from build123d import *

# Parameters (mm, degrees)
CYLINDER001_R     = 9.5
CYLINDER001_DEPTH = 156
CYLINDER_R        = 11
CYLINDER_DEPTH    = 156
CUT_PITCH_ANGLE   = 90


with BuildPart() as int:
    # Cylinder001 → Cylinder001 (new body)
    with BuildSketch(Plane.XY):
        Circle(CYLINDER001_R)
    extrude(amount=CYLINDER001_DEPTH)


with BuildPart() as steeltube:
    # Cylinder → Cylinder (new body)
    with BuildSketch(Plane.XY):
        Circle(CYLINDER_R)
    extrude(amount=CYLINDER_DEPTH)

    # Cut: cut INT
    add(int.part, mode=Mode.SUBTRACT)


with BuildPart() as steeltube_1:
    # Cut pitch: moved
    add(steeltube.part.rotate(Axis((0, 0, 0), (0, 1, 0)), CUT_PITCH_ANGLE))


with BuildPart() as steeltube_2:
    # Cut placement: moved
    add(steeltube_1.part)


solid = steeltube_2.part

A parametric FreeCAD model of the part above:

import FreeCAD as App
import Part
import Sketcher

V = App.Vector

doc = App.newDocument("Part")
body = doc.addObject("PartDesign::Body", "Body")

# Sketch on XY plane
sketch1 = doc.addObject("Sketcher::SketchObject", "Sketch")
body.addObject(sketch1)
sketch1.AttachmentSupport = (doc.XY_Plane, [""])
sketch1.MapMode = "FlatFace"
sketch1.addGeometry(Part.Circle(V(0, 0, 0), V(0, 0, 1), 10), False)
sketch1.addConstraint(Sketcher.Constraint("Coincident", 0, 3, -1, 1))
sketch1.addConstraint(Sketcher.Constraint("Diameter", 0, 19.0))
pad1 = doc.addObject("PartDesign::Pad", "Pad")
body.addObject(pad1)
pad1.Profile = sketch1
pad1.Length = 156
body2 = doc.addObject("PartDesign::Body", "Body001")

# Sketch on XY plane
sketch2 = doc.addObject("Sketcher::SketchObject", "Sketch001")
body2.addObject(sketch2)
sketch2.AttachmentSupport = (doc.getObject("XY_Plane001"), [""])
sketch2.MapMode = "FlatFace"
sketch2.addGeometry(Part.Circle(V(0, 0, 0), V(0, 0, 1), 11), False)
sketch2.addConstraint(Sketcher.Constraint("Coincident", 0, 3, -1, 1))
sketch2.addConstraint(Sketcher.Constraint("Diameter", 0, 22.0))
pad2 = doc.addObject("PartDesign::Pad", "Pad001")
body2.addObject(pad2)
pad2.Profile = sketch2
pad2.Length = 156
doc.recompute()

boolean = doc.addObject("PartDesign::Boolean", "Boolean")
body2.addObject(boolean)
boolean.Type = "Cut"
boolean.addObjects([body])
body3 = doc.addObject("PartDesign::Body", "Body002")
doc.recompute()

body2.Placement = App.Placement(V(0, 0, 0), App.Rotation(V(0, 1, 0), 90))
boolean2 = doc.addObject("PartDesign::Boolean", "Boolean001")
body3.addObject(boolean2)
boolean2.Type = "Fuse"
boolean2.addObjects([body2])

doc.recompute()
